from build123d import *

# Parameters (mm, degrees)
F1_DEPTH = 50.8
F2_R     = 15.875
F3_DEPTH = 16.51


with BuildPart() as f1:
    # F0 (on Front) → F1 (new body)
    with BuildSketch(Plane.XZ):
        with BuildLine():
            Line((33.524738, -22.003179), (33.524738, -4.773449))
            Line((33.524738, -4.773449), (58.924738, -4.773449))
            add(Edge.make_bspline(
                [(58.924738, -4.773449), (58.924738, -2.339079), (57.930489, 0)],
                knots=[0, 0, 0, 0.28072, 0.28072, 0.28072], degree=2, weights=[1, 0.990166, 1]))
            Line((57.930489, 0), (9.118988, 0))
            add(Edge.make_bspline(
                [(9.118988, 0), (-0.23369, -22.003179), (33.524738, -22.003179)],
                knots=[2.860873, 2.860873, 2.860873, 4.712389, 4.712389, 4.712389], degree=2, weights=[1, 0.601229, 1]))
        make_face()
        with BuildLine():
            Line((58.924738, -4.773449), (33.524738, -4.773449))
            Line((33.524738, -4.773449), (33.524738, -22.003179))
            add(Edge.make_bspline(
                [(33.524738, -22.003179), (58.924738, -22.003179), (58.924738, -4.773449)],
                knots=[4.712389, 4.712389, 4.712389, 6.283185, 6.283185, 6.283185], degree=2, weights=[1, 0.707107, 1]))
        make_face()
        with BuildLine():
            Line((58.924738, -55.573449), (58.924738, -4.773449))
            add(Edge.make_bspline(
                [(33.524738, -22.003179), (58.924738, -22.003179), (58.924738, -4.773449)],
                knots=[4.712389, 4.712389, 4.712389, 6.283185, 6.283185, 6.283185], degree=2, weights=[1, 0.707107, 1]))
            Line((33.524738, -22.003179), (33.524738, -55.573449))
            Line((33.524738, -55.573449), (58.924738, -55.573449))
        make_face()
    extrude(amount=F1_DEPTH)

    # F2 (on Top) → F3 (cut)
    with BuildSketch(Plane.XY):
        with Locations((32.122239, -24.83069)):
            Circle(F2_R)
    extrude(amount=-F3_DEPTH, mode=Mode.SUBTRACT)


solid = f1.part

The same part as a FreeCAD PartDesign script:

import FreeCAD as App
import Part
import Sketcher
from FreeCAD import Vector
Q = App.Units.Quantity

doc = App.newDocument("Part")
params = doc.addObject("Spreadsheet::Sheet", "Params")
for row, (alias, value) in enumerate([
    ("sketch1_height", "2 in"),
    ("pad1_length", "2 in"),
    ("sketch2_diameter", "1.25 in"),
    ("pocket1_length", "0.65 in"),
], start=1):
    params.set(f"A{row}", alias)
    params.set(f"B{row}", "=" + value)
    params.setAlias(f"B{row}", alias)

body = doc.addObject("PartDesign::Body", "Body")

sketch1 = body.newObject("Sketcher::SketchObject", "Sketch")
sketch1.AttachmentSupport = (doc.getObject("XZ_Plane"), [""])
sketch1.MapMode = "FlatFace"
sketch1.addGeometry(Part.LineSegment(Vector(57.930489, 0, 0), Vector(9.118988, 0, 0)), False)
sketch1.addGeometry(Part.BSplineCurve([Vector(9.118988, 0, 0), Vector(6.869748, -5.29158, 0), Vector(7.164447, -13.079786, 0), Vector(14.455845, -19.653398, 0), Vector(25.40612, -22.003179, 0), Vector(33.524738, -22.003179, 0)], [6, 6], [2.860873, 4.712389], False, 5, [1, 1, 0.936392676, 0.936392676, 1, 1], False), False)
sketch1.addGeometry(Part.LineSegment(Vector(33.524738, -22.003179, 0), Vector(33.524738, -55.573449, 0)), False)
sketch1.addGeometry(Part.LineSegment(Vector(33.524738, -55.573449, 0), Vector(58.924738, -55.573449, 0)), False)
sketch1.addGeometry(Part.LineSegment(Vector(58.924738, -55.573449, 0), Vector(58.924738, -4.773449, 0)), False)
sketch1.addGeometry(Part.BSplineCurve([Vector(58.924738, -4.773449, 0), Vector(58.924738, -3.809277, 0), Vector(58.825309, -2.840289, 0), Vector(58.624496, -1.876174, 0), Vector(58.324278, -0.926431, 0), Vector(57.930489, 0, 0)], [6, 6], [6.350805025, 6.674961855], False, 5, [1, 1, 0.999961317, 0.999961317, 1, 1], False), False)
sketch1.addConstraint(Sketcher.Constraint("Block", 1))
sketch1.addConstraint(Sketcher.Constraint("Block", 5))
sketch1.addConstraint(Sketcher.Constraint("Coincident", 0, 2, 1, 1))
sketch1.addConstraint(Sketcher.Constraint("Coincident", 1, 2, 2, 1))
sketch1.addConstraint(Sketcher.Constraint("Coincident", 2, 2, 3, 1))
sketch1.addConstraint(Sketcher.Constraint("Coincident", 3, 2, 4, 1))
sketch1.addConstraint(Sketcher.Constraint("Coincident", 4, 2, 5, 1))
sketch1.addConstraint(Sketcher.Constraint("Coincident", 5, 2, 0, 1))
sketch1.addConstraint(Sketcher.Constraint("Vertical", 2))
sketch1.addConstraint(Sketcher.Constraint("Horizontal", 3))
sketch1.addConstraint(Sketcher.Constraint("Vertical", 4))
sketch1.addConstraint(Sketcher.Constraint("DistanceY", 4, 1, 4, 2, Q("2 in")))
sketch1.setExpression("Constraints[11]", "Params.sketch1_height")
pad1 = body.newObject("PartDesign::Pad", "Pad")
pad1.Profile = sketch1
pad1.setExpression("Length", "Params.pad1_length")

sketch2 = body.newObject("Sketcher::SketchObject", "Sketch001")
sketch2.AttachmentSupport = (doc.getObject("XY_Plane"), [""])
sketch2.MapMode = "FlatFace"
sketch2.addGeometry(Part.Circle(Vector(32, -25, 0), Vector(0, 0, 1), 16), False)
sketch2.addConstraint(Sketcher.Constraint("Diameter", 0, Q("1.25 in")))
sketch2.addConstraint(Sketcher.Constraint("DistanceX", -1, 1, 0, 3, 32.122239))
sketch2.addConstraint(Sketcher.Constraint("DistanceY", 0, 3, -1, 1, 24.83069))
sketch2.setExpression("Constraints[0]", "Params.sketch2_diameter")
pocket1 = body.newObject("PartDesign::Pocket", "Pocket")
pocket1.Profile = sketch2
pocket1.setExpression("Length", "Params.pocket1_length")

doc.recompute()
